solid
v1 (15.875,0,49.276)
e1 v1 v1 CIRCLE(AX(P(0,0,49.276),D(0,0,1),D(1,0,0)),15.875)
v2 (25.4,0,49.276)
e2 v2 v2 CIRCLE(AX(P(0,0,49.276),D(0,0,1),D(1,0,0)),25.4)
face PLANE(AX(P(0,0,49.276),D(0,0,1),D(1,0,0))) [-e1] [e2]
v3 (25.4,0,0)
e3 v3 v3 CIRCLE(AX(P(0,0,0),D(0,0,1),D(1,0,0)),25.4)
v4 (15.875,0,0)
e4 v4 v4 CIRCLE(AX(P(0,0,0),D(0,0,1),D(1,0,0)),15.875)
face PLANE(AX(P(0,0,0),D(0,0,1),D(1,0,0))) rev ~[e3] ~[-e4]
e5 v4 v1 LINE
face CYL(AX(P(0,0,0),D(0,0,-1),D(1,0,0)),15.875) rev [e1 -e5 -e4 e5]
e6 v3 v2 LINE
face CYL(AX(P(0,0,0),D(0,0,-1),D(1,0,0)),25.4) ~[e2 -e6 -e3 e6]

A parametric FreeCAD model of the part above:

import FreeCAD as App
import Part
import Sketcher

V = App.Vector
Q = App.Units.Quantity

doc = App.newDocument("Part")
body = doc.addObject("PartDesign::Body", "Body")

# Sketch on XY plane
sketch1 = doc.addObject("Sketcher::SketchObject", "Sketch")
body.addObject(sketch1)
sketch1.AttachmentSupport = (doc.XY_Plane, [""])
sketch1.MapMode = "FlatFace"
sketch1.addGeometry([
    Part.Circle(V(0, 0, 0), V(0, 0, 1), 25.4),
    Part.Circle(V(0, 0, 0), V(0, 0, 1), 15.875),
], False)
sketch1.addConstraint([
    Sketcher.Constraint("Coincident", 0, 3, -1, 1),
    Sketcher.Constraint("Coincident", 1, 3, -1, 1),
    Sketcher.Constraint("Diameter", 0, Q("2 in")),
    Sketcher.Constraint("Diameter", 1, Q("1.25 in")),
])
pad1 = doc.addObject("PartDesign::Pad", "Pad")
body.addObject(pad1)
pad1.Profile = sketch1
pad1.Length = Q("1.94 in")

doc.recompute()
